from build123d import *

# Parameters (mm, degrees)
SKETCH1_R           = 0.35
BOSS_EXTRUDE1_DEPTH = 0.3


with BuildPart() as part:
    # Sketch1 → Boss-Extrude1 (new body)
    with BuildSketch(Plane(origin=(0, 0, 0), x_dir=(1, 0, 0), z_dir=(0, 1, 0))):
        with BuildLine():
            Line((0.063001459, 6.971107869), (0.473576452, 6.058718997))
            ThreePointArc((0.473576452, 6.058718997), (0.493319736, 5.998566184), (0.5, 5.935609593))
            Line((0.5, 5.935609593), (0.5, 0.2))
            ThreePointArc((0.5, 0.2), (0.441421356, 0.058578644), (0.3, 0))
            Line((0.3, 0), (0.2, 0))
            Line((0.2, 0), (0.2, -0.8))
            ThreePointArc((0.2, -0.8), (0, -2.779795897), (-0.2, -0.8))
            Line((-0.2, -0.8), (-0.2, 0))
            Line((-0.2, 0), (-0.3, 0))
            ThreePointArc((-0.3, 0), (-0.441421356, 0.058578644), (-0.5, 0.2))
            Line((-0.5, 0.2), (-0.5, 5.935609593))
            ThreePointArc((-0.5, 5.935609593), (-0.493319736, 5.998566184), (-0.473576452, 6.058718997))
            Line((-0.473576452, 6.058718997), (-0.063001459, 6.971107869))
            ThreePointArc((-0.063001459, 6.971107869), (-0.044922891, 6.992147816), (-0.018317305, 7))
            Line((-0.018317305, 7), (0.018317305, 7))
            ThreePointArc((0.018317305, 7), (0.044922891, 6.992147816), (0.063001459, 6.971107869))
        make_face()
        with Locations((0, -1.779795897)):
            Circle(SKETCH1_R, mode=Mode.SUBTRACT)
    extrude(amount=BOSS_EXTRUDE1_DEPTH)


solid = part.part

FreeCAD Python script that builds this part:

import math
import FreeCAD as App
import Part
import Sketcher

doc = App.newDocument("Part")
body = doc.addObject("PartDesign::Body", "Body")

# Sketch on XZ plane
sketch1 = doc.addObject("Sketcher::SketchObject", "Sketch")
body.addObject(sketch1)
sketch1.AttachmentSupport = (doc.XZ_Plane, [""])
sketch1.MapMode = "FlatFace"
sketch1.addGeometry(Part.LineSegment(App.Vector(0.473576, -6.058719, 0), App.Vector(0.063001, -6.971108, 0)), False)
sketch1.addGeometry(Part.ArcOfCircle(Part.Circle(App.Vector(0.018317, -6.951, 0), App.Vector(0, 0, 1), 0.049), math.radians(-89.999999), math.radians(-24.227747)), False)
sketch1.addGeometry(Part.LineSegment(App.Vector(0.018317, -7, 0), App.Vector(-0.018317, -7, 0)), False)
sketch1.addGeometry(Part.ArcOfCircle(Part.Circle(App.Vector(-0.018317, -6.951, 0), App.Vector(0, 0, 1), 0.049), math.radians(-155.772253), math.radians(-90.000001)), False)
sketch1.addGeometry(Part.LineSegment(App.Vector(-0.063001, -6.971108, 0), App.Vector(-0.473576, -6.058719, 0)), False)
sketch1.addGeometry(Part.ArcOfCircle(Part.Circle(App.Vector(-0.2, -5.93561, 0), App.Vector(0, 0, 1), 0.3), math.radians(-179.999999), math.radians(-155.772256)), False)
sketch1.addGeometry(Part.LineSegment(App.Vector(-0.5, -5.93561, 0), App.Vector(-0.5, -0.2, 0)), False)
sketch1.addGeometry(Part.ArcOfCircle(Part.Circle(App.Vector(-0.3, -0.2, 0), App.Vector(0, 0, 1), 0.2), math.radians(90), math.radians(180)), False)
sketch1.addGeometry(Part.LineSegment(App.Vector(-0.3, 0, 0), App.Vector(-0.2, 0, 0)), False)
sketch1.addGeometry(Part.LineSegment(App.Vector(-0.2, 0, 0), App.Vector(-0.2, 0.8, 0)), False)
sketch1.addGeometry(Part.ArcOfCircle(Part.Circle(App.Vector(0, 1.779796, 0), App.Vector(0, 0, 1), 1), math.radians(-78.463041), math.radians(258.463041)), False)
sketch1.addGeometry(Part.LineSegment(App.Vector(0.2, 0.8, 0), App.Vector(0.2, 0, 0)), False)
sketch1.addGeometry(Part.LineSegment(App.Vector(0.2, 0, 0), App.Vector(0.3, 0, 0)), False)
sketch1.addGeometry(Part.ArcOfCircle(Part.Circle(App.Vector(0.3, -0.2, 0), App.Vector(0, 0, 1), 0.2), math.radians(0), math.radians(90)), False)
sketch1.addGeometry(Part.LineSegment(App.Vector(0.5, -0.2, 0), App.Vector(0.5, -5.93561, 0)), False)
sketch1.addGeometry(Part.ArcOfCircle(Part.Circle(App.Vector(0.2, -5.93561, 0), App.Vector(0, 0, 1), 0.3), math.radians(-24.227744), math.radians(-0.000001)), False)
sketch1.addGeometry(Part.Circle(App.Vector(0, 1.779796, 0), App.Vector(0, 0, 1), 0.35), False)
sketch1.addConstraint(Sketcher.Constraint("Tangent", 0, 2, 1, 2))
sketch1.addConstraint(Sketcher.Constraint("Tangent", 1, 1, 2, 1))
sketch1.addConstraint(Sketcher.Constraint("Tangent", 2, 2, 3, 2))
sketch1.addConstraint(Sketcher.Constraint("Tangent", 3, 1, 4, 1))
sketch1.addConstraint(Sketcher.Constraint("Tangent", 4, 2, 5, 2))
sketch1.addConstraint(Sketcher.Constraint("Tangent", 5, 1, 6, 1))
sketch1.addConstraint(Sketcher.Constraint("Tangent", 6, 2, 7, 2))
sketch1.addConstraint(Sketcher.Constraint("Tangent", 7, 1, 8, 1))
sketch1.addConstraint(Sketcher.Constraint("Coincident", 8, 2, 9, 1))
sketch1.addConstraint(Sketcher.Constraint("Coincident", 9, 2, 10, 2))
sketch1.addConstraint(Sketcher.Constraint("Coincident", 10, 1, 11, 1))
sketch1.addConstraint(Sketcher.Constraint("Coincident", 11, 2, 12, 1))
sketch1.addConstraint(Sketcher.Constraint("Tangent", 12, 2, 13, 2))
sketch1.addConstraint(Sketcher.Constraint("Tangent", 13, 1, 14, 1))
sketch1.addConstraint(Sketcher.Constraint("Tangent", 14, 2, 15, 2))
sketch1.addConstraint(Sketcher.Constraint("Tangent", 15, 1, 0, 1))
sketch1.addConstraint(Sketcher.Constraint("Horizontal", 2))
sketch1.addConstraint(Sketcher.Constraint("Vertical", 6))
sketch1.addConstraint(Sketcher.Constraint("Horizontal", 8))
sketch1.addConstraint(Sketcher.Constraint("Vertical", 9))
sketch1.addConstraint(Sketcher.Constraint("Vertical", 11))
sketch1.addConstraint(Sketcher.Constraint("Horizontal", 12))
sketch1.addConstraint(Sketcher.Constraint("Vertical", 14))
sketch1.addConstraint(Sketcher.Constraint("Coincident", 16, 3, 10, 3))
sketch1.addConstraint(Sketcher.Constraint("Equal", 1, 3))
sketch1.addConstraint(Sketcher.Constraint("Equal", 7, 13))
sketch1.addConstraint(Sketcher.Constraint("Equal", 5, 15))
sketch1.addConstraint(Sketcher.Constraint("Symmetric", 8, 2, 11, 2, -1, 1))
sketch1.addConstraint(Sketcher.Constraint("Symmetric", 7, 3, 13, 3, -2))
sketch1.addConstraint(Sketcher.Constraint("Symmetric", 0, 2, 3, 1, -2))
sketch1.addConstraint(Sketcher.Constraint("PointOnObject", 10, 3, -2))
sketch1.addConstraint(Sketcher.Constraint("Vertical", 5, 3, 8, 2))
sketch1.addConstraint(Sketcher.Constraint("Radius", 10, 1.0))
sketch1.addConstraint(Sketcher.Constraint("Diameter", 16, 0.7))
sketch1.addConstraint(Sketcher.Constraint("Radius", 5, 0.3))
sketch1.addConstraint(Sketcher.Constraint("Radius", 7, 0.2))
sketch1.addConstraint(Sketcher.Constraint("DistanceY", 9, 1, 9, 2, 0.8))
sketch1.addConstraint(Sketcher.Constraint("DistanceY", 1, 1, -1, 1, 7.0))
sketch1.addConstraint(Sketcher.Constraint("Radius", 1, 0.049))
sketch1.addConstraint(Sketcher.Constraint("DistanceX", 5, 1, 14, 2, 1.0))
sketch1.addConstraint(Sketcher.Constraint("DistanceX", -1, 1, 0, 2, 0.063001))
sketch1.addConstraint(Sketcher.Constraint("DistanceY", 6, 1, 6, 2, 5.73561))
pad1 = doc.addObject("PartDesign::Pad", "Pad")
body.addObject(pad1)
pad1.Profile = sketch1
pad1.Length = 0.3
pad1.Reversed = True

doc.recompute()
